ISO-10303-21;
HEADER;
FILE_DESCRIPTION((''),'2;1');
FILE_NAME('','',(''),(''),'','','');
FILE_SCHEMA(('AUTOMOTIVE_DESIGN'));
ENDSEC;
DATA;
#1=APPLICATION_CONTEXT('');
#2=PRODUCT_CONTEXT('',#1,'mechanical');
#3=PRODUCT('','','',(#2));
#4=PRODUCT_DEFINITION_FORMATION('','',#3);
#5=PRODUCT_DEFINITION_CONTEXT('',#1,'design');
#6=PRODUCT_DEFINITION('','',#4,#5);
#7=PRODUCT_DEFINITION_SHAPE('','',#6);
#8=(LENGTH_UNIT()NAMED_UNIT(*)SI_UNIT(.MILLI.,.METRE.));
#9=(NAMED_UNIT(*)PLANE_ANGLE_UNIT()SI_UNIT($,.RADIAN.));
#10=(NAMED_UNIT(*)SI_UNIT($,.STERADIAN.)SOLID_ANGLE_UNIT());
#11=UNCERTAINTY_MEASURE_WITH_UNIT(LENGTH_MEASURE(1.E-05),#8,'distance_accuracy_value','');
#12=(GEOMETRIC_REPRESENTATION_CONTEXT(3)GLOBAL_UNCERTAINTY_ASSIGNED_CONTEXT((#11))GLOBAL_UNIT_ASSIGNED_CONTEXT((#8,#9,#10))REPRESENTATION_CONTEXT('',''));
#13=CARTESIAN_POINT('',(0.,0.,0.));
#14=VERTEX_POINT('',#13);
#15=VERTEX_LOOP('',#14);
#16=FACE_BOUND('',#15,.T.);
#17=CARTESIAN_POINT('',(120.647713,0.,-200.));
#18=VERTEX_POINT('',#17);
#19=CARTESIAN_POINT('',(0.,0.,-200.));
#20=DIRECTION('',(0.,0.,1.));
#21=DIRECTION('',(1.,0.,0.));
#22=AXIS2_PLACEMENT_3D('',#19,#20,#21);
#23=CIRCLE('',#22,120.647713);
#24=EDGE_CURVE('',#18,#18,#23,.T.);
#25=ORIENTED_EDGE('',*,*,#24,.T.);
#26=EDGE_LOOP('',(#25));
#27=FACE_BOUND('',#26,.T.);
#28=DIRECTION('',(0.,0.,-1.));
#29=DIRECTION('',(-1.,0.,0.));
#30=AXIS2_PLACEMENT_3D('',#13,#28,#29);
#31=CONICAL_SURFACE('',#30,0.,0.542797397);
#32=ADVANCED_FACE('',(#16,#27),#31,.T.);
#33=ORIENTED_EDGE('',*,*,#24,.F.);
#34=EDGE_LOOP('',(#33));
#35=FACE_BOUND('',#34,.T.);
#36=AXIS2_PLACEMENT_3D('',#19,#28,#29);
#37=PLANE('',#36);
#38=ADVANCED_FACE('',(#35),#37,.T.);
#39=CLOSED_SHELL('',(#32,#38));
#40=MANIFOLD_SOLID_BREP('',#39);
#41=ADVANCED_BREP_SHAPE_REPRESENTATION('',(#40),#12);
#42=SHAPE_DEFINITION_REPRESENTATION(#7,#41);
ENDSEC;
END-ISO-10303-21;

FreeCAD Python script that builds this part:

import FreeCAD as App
import Part
import Sketcher

V = App.Vector
Q = App.Units.Quantity


def add_polygon(sketch, points):
    """Adds a closed chain of lines whose ends are joined by coincident constraints."""
    first, n = sketch.GeometryCount, len(points)
    for a, b in zip(points, points[1:] + points[:1]):
        sketch.addGeometry(Part.LineSegment(App.Vector(*a, 0), App.Vector(*b, 0)), False)
    for i in range(n):
        sketch.addConstraint(Sketcher.Constraint("Coincident", first + i, 2, first + (i + 1) % n, 1))

doc = App.newDocument("Part")
params = doc.addObject("Spreadsheet::Sheet", "Params")
for row, (alias, value) in enumerate([
    ("sketch1_height", "200 mm"),
    ("revolution_angle", "360 deg"),
], start=1):
    params.set(f"A{row}", alias)
    params.set(f"B{row}", "=" + value)
    params.setAlias(f"B{row}", alias)

body = doc.addObject("PartDesign::Body", "Body")

# Sketch on XZ plane
sketch1 = doc.addObject("Sketcher::SketchObject", "Sketch")
body.addObject(sketch1)
sketch1.AttachmentSupport = (doc.XZ_Plane, [""])
sketch1.MapMode = "FlatFace"
add_polygon(sketch1, [(0, -200), (0, 0), (121, -200)])  # lines 0-2
sketch1.addConstraint([
    Sketcher.Constraint("Vertical", 0),
    Sketcher.Constraint("Horizontal", 2),
    Sketcher.Constraint("Coincident", 0, 2, -1, 1),
    Sketcher.Constraint("DistanceY", 0, 1, 0, 2, 200.0),
    Sketcher.Constraint("Angle", 1, Q("-58.9 deg")),
])
sketch1.setExpression("Constraints[6]", "Params.sketch1_height")
revolution = doc.addObject("PartDesign::Revolution", "Revolution")
body.addObject(revolution)
revolution.Profile = sketch1
revolution.ReferenceAxis = (sketch1, ["V_Axis"])
revolution.setExpression("Angle", "Params.revolution_angle")

doc.recompute()
